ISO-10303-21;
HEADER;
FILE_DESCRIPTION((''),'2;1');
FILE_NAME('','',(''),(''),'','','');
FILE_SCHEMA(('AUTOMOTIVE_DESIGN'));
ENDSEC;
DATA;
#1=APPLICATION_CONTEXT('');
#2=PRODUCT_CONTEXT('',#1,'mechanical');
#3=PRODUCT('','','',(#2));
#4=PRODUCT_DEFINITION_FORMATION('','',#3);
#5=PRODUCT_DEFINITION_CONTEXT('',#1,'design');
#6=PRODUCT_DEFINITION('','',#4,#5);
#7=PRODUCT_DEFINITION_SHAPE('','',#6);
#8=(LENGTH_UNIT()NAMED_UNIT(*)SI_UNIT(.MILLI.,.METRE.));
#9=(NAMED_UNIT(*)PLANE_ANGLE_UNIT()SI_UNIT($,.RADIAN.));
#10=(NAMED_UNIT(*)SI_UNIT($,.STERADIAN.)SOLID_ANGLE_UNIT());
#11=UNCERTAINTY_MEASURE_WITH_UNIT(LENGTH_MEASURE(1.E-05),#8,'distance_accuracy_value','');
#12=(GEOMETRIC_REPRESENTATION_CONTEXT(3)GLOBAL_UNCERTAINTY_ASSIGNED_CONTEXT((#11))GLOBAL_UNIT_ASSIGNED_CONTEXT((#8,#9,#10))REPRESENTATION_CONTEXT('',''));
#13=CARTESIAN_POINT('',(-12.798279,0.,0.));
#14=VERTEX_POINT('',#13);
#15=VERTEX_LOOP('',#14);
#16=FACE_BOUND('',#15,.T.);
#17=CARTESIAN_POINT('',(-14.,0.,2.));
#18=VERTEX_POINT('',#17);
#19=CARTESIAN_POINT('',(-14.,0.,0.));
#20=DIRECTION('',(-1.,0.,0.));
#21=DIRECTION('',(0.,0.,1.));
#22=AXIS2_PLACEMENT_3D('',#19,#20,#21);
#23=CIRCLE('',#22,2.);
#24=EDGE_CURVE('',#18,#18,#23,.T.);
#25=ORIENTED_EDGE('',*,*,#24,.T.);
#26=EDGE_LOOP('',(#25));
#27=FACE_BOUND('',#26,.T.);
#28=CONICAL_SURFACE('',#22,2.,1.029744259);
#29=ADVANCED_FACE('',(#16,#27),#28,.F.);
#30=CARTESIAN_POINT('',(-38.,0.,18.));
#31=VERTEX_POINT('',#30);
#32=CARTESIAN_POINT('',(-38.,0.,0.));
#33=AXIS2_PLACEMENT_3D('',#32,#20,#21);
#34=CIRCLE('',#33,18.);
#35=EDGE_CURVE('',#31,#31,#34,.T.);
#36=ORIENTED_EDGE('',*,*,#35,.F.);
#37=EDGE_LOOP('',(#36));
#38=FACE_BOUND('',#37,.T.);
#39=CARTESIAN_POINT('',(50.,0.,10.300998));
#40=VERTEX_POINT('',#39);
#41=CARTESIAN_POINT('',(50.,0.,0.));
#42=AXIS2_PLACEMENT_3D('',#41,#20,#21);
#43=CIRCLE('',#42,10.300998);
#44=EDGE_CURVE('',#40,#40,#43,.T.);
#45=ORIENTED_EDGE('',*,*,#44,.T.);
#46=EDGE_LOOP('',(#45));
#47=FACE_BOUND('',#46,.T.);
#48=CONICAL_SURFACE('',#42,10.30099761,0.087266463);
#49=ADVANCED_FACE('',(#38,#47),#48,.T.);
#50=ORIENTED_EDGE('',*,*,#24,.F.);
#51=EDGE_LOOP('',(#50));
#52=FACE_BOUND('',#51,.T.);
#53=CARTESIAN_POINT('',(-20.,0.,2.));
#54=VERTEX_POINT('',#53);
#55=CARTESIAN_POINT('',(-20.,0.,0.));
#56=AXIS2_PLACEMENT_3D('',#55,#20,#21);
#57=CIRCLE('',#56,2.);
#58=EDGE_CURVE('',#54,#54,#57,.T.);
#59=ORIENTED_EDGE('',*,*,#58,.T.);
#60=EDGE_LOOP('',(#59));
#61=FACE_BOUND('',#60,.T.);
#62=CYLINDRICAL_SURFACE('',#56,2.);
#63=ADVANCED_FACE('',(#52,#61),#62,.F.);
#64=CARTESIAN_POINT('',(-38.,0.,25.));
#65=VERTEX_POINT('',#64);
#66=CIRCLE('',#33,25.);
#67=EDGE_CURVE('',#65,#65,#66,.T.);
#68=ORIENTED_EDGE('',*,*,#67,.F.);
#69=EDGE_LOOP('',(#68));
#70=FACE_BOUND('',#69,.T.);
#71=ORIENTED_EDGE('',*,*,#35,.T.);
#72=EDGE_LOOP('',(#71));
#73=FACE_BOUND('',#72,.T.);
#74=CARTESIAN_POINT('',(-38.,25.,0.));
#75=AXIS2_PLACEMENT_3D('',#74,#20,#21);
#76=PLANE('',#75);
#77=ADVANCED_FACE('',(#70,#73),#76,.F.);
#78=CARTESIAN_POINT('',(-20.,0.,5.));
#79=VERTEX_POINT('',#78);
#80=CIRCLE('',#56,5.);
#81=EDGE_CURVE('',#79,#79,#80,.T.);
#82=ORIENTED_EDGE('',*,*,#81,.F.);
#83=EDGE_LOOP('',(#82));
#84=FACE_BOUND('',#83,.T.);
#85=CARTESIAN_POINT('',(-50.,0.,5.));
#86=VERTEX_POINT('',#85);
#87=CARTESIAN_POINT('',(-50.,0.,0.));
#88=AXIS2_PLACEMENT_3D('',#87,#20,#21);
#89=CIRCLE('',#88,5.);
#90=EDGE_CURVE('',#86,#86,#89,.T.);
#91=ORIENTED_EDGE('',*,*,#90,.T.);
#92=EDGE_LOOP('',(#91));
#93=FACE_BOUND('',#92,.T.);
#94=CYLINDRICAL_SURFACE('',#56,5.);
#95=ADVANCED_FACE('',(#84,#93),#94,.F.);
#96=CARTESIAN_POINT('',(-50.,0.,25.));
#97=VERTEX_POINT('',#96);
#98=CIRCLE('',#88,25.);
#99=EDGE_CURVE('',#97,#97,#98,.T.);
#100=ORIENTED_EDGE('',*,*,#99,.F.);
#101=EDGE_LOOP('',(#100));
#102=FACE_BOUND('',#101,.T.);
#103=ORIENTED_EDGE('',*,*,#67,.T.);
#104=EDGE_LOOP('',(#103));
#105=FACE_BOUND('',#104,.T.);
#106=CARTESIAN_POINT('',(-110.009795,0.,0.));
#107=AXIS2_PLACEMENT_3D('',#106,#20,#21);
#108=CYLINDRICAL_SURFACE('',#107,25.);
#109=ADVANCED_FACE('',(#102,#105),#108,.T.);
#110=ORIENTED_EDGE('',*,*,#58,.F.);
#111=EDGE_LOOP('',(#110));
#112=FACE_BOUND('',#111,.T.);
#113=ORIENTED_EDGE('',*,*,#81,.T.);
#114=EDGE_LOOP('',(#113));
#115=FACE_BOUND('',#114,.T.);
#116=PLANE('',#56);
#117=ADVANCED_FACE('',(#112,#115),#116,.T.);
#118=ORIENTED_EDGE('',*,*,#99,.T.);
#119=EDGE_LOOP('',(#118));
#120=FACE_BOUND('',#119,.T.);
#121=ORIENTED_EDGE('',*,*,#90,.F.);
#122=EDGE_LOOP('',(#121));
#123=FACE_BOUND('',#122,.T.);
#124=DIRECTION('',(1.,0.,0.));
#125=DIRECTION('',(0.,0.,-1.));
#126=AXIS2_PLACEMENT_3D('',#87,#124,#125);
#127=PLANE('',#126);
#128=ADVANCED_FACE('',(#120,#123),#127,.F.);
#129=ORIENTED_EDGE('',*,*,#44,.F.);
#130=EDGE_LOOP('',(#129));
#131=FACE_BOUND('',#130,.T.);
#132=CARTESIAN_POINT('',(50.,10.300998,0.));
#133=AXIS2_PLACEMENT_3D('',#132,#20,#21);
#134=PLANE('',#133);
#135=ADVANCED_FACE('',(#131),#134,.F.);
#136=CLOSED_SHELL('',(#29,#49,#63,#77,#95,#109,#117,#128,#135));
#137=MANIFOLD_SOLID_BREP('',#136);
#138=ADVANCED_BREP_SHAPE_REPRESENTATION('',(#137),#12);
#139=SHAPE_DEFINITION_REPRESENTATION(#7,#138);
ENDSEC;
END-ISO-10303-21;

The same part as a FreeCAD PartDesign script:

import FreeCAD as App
import Part
import Sketcher
Q = App.Units.Quantity

doc = App.newDocument("Part")
body = doc.addObject("PartDesign::Body", "Body")

# Sketch on XY plane
sketch1 = body.newObject("Sketcher::SketchObject", "Sketch")
sketch1.AttachmentSupport = (doc.getObject("XY_Plane"), [""])
sketch1.MapMode = "FlatFace"
sketch1.addGeometry([
    Part.LineSegment(App.Vector(-50, 25, 0), App.Vector(-50, 0, 0)),  # 0
    Part.LineSegment(App.Vector(-50, 0, 0), App.Vector(50, 0, 0)),  # 1
    Part.LineSegment(App.Vector(50, 0, 0), App.Vector(50, 10, 0)),  # 2
    Part.LineSegment(App.Vector(50, 10, 0), App.Vector(-38, 18, 0)),  # 3
    Part.LineSegment(App.Vector(-38, 18, 0), App.Vector(-38, 25, 0)),  # 4
    Part.LineSegment(App.Vector(-38, 25, 0), App.Vector(-50, 25, 0)),  # 5
], False)
sketch1.addConstraint([
    Sketcher.Constraint("Coincident", 0, 2, 1, 1),
    Sketcher.Constraint("Coincident", 1, 2, 2, 1),
    Sketcher.Constraint("Coincident", 2, 2, 3, 1),
    Sketcher.Constraint("Coincident", 3, 2, 4, 1),
    Sketcher.Constraint("Coincident", 4, 2, 5, 1),
    Sketcher.Constraint("Coincident", 5, 2, 0, 1),
    Sketcher.Constraint("Vertical", 0),
    Sketcher.Constraint("Horizontal", 1),
    Sketcher.Constraint("Vertical", 2),
    Sketcher.Constraint("Vertical", 4),
    Sketcher.Constraint("Horizontal", 5),
    Sketcher.Constraint("Symmetric", 0, 2, 1, 2, -1, 1),
    Sketcher.Constraint("DistanceX", 1, 1, 1, 2, 100.0),
    Sketcher.Constraint("DistanceX", 5, 2, 5, 1, 12.0),
    Sketcher.Constraint("DistanceY", 0, 2, 0, 1, 25.0),
    Sketcher.Constraint("DistanceY", 4, 1, 4, 2, 7.0),
    Sketcher.Constraint("Angle", 3, Q("175 deg")),
])
revolution = body.newObject("PartDesign::Revolution", "Revolution")
revolution.Profile = sketch1
revolution.ReferenceAxis = (sketch1, ["H_Axis"])
revolution.Angle = 360

# Sketch on YZ plane
sketch2 = body.newObject("Sketcher::SketchObject", "Sketch001")
sketch2.AttachmentSupport = (doc.getObject("YZ_Plane"), [""])
sketch2.MapMode = "FlatFace"
sketch2.AttachmentOffset = App.Placement(App.Vector(0, 0, -50), App.Rotation())
sketch2.addGeometry(Part.Circle(App.Vector(0, 0, 0), App.Vector(0, 0, 1), 5), False)
sketch2.addConstraint([
    Sketcher.Constraint("Coincident", 0, 3, -1, 1),
    Sketcher.Constraint("Diameter", 0, 10.0),
])
pocket1 = body.newObject("PartDesign::Pocket", "Pocket")
pocket1.Profile = sketch2
pocket1.Length = 30
pocket1.Reversed = True

# Sketch on YZ plane
sketch3 = body.newObject("Sketcher::SketchObject", "Sketch002")
sketch3.AttachmentSupport = (doc.getObject("YZ_Plane"), [""])
sketch3.MapMode = "FlatFace"
sketch3.AttachmentOffset = App.Placement(App.Vector(0, 0, -20), App.Rotation())
sketch3.addGeometry(Part.Circle(App.Vector(0, 0, 0), App.Vector(0, 0, 1), 2), False)
sketch3.addConstraint([
    Sketcher.Constraint("Coincident", 0, 3, -1, 1),
    Sketcher.Constraint("Diameter", 0, 4.0),
])
doc.recompute()
hole = body.newObject("PartDesign::Hole", "Hole")
hole.Profile = sketch3
hole.ThreadType = "None"
hole.Diameter = 4
hole.DepthType = "Dimension"
hole.Depth = 6
hole.DrillPoint = "Angled"
hole.DrillPointAngle = 118
hole.Reversed = True

doc.recompute()
